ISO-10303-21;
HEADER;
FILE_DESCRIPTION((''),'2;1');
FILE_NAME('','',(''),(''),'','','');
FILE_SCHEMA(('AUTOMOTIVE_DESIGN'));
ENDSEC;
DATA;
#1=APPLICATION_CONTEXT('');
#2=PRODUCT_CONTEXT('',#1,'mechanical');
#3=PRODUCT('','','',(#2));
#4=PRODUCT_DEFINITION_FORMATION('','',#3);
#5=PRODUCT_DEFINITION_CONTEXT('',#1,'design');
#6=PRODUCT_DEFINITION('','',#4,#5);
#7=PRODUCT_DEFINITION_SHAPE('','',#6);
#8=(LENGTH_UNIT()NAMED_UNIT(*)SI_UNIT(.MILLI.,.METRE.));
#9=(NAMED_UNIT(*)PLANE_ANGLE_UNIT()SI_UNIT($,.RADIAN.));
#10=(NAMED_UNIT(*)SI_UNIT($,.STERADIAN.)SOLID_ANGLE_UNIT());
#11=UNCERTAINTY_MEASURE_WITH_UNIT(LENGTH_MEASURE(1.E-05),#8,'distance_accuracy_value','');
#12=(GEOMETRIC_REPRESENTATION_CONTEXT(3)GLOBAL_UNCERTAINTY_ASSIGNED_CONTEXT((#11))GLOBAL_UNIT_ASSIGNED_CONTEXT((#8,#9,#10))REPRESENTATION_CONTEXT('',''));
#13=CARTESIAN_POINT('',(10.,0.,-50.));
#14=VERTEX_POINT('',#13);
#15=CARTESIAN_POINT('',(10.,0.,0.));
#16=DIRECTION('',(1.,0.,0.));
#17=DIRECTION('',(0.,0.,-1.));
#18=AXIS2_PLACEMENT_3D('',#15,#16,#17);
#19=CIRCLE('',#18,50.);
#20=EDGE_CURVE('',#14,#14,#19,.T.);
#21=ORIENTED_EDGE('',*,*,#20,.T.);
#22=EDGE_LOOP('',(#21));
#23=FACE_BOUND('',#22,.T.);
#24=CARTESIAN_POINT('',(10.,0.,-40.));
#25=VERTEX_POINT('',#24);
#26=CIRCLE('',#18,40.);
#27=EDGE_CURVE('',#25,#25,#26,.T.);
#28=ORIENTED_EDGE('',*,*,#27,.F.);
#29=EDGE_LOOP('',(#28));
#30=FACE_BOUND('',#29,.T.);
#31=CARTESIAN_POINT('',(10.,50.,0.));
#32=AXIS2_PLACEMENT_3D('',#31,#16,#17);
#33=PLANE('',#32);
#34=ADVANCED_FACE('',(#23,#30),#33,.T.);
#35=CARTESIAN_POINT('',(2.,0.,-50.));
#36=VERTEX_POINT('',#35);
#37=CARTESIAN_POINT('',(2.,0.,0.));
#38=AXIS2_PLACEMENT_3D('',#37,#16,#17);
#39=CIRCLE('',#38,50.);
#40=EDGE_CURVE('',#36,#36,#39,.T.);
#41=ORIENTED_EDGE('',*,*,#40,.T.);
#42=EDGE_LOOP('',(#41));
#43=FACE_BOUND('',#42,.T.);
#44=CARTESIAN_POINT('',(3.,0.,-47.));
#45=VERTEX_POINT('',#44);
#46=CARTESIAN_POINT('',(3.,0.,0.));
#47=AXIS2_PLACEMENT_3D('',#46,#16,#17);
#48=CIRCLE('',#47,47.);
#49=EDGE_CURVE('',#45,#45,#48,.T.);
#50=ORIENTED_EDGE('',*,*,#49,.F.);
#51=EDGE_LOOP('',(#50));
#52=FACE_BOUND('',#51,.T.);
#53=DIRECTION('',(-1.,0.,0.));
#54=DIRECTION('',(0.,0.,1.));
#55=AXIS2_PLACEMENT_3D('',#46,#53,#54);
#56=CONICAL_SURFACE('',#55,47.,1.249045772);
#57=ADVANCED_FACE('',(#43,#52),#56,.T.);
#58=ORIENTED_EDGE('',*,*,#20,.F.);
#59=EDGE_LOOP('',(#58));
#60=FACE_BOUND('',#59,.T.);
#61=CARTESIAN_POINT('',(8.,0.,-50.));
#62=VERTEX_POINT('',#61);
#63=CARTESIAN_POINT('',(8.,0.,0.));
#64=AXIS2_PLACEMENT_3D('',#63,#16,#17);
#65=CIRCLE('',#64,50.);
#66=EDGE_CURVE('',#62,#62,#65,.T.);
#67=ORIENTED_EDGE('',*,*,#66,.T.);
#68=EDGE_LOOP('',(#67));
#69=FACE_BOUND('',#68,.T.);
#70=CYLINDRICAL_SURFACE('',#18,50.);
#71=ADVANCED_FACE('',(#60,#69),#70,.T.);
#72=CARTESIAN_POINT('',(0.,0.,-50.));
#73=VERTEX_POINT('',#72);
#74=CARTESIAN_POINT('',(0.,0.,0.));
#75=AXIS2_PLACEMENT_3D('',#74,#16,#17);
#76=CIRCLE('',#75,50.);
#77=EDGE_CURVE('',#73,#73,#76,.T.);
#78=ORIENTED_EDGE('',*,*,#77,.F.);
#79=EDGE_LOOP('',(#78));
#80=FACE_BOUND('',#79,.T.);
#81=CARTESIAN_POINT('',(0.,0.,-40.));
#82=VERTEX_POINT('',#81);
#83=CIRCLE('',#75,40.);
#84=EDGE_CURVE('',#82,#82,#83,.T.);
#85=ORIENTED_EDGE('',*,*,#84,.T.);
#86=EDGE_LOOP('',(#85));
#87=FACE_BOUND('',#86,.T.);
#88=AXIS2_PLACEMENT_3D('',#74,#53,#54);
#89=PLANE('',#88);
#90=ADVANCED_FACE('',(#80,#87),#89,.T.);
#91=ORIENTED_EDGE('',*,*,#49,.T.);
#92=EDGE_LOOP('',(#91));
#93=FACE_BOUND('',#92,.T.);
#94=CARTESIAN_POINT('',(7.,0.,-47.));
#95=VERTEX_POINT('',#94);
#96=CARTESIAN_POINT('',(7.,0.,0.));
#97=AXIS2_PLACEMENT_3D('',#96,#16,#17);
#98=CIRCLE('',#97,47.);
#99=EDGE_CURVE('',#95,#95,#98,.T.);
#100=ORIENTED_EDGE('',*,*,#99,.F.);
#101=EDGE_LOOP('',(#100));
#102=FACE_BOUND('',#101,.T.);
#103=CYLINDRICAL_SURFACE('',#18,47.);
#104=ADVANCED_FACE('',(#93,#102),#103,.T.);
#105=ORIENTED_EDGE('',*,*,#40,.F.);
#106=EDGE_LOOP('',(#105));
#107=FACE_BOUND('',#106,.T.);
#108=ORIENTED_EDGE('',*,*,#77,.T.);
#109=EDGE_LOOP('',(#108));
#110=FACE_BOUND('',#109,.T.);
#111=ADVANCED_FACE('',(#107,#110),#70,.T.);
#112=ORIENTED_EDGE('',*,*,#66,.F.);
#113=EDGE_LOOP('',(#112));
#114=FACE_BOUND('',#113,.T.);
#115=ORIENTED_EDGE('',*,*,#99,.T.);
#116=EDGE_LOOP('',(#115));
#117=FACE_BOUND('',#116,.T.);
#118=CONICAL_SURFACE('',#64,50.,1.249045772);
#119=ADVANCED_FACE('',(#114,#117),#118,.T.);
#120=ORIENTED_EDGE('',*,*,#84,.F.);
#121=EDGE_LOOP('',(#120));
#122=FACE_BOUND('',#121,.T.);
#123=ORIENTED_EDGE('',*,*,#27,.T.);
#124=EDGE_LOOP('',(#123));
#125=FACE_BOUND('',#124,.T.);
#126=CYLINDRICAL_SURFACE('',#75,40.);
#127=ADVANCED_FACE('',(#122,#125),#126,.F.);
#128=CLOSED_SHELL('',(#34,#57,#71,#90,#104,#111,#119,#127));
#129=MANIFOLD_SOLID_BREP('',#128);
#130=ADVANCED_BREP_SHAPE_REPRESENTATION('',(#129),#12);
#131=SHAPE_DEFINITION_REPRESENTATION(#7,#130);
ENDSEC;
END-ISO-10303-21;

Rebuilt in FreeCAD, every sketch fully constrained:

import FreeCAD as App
import Part
import Sketcher


def add_polygon(sketch, points):
    """Adds a closed chain of lines whose ends are joined by coincident constraints."""
    first, n = sketch.GeometryCount, len(points)
    for a, b in zip(points, points[1:] + points[:1]):
        sketch.addGeometry(Part.LineSegment(App.Vector(*a, 0), App.Vector(*b, 0)), False)
    for i in range(n):
        sketch.addConstraint(Sketcher.Constraint("Coincident", first + i, 2, first + (i + 1) % n, 1))

doc = App.newDocument("Part")
body = doc.addObject("PartDesign::Body", "Body")

sketch1 = doc.addObject("Sketcher::SketchObject", "Sketch")
body.addObject(sketch1)
sketch1.AttachmentSupport = (doc.XY_Plane, [""])
sketch1.MapMode = "FlatFace"
add_polygon(sketch1, [(0, 50), (0, 0), (10, 0), (10, 50), (8, 50), (7, 47), (3, 47), (2, 50)])
sketch1.addConstraint(Sketcher.Constraint("Vertical", 0))
sketch1.addConstraint(Sketcher.Constraint("Horizontal", 1))
sketch1.addConstraint(Sketcher.Constraint("Vertical", 2))
sketch1.addConstraint(Sketcher.Constraint("Horizontal", 3))
sketch1.addConstraint(Sketcher.Constraint("Horizontal", 5))
sketch1.addConstraint(Sketcher.Constraint("Horizontal", 7))
sketch1.addConstraint(Sketcher.Constraint("Coincident", 0, 2, -1, 1))
sketch1.addConstraint(Sketcher.Constraint("Horizontal", 3, 2, 6, 2))
sketch1.addConstraint(Sketcher.Constraint("Equal", 3, 7))
sketch1.addConstraint(Sketcher.Constraint("Equal", 4, 6))
sketch1.addConstraint(Sketcher.Constraint("DistanceX", 1, 1, 1, 2, 10.0))
sketch1.addConstraint(Sketcher.Constraint("DistanceX", 3, 2, 3, 1, 2.0))
sketch1.addConstraint(Sketcher.Constraint("DistanceX", 5, 2, 5, 1, 4.0))
sketch1.addConstraint(Sketcher.Constraint("DistanceY", 0, 2, 0, 1, 50.0))
sketch1.addConstraint(Sketcher.Constraint("DistanceY", -1, 1, 4, 2, 47.0))
revolution = doc.addObject("PartDesign::Revolution", "Revolution")
body.addObject(revolution)
revolution.Profile = sketch1
revolution.ReferenceAxis = (sketch1, ["H_Axis"])
revolution.Angle = 360

sketch2 = doc.addObject("Sketcher::SketchObject", "Sketch001")
body.addObject(sketch2)
sketch2.AttachmentSupport = (doc.YZ_Plane, [""])
sketch2.MapMode = "FlatFace"
sketch2.AttachmentOffset = App.Placement(App.Vector(0, 0, 10), App.Rotation())
sketch2.addGeometry(Part.Circle(App.Vector(0, 0, 0), App.Vector(0, 0, 1), 40), False)
sketch2.addConstraint(Sketcher.Constraint("Coincident", 0, 3, -1, 1))
sketch2.addConstraint(Sketcher.Constraint("Diameter", 0, 80.0))
pocket1 = doc.addObject("PartDesign::Pocket", "Pocket")
body.addObject(pocket1)
pocket1.Profile = sketch2
pocket1.Length = 10

doc.recompute()
